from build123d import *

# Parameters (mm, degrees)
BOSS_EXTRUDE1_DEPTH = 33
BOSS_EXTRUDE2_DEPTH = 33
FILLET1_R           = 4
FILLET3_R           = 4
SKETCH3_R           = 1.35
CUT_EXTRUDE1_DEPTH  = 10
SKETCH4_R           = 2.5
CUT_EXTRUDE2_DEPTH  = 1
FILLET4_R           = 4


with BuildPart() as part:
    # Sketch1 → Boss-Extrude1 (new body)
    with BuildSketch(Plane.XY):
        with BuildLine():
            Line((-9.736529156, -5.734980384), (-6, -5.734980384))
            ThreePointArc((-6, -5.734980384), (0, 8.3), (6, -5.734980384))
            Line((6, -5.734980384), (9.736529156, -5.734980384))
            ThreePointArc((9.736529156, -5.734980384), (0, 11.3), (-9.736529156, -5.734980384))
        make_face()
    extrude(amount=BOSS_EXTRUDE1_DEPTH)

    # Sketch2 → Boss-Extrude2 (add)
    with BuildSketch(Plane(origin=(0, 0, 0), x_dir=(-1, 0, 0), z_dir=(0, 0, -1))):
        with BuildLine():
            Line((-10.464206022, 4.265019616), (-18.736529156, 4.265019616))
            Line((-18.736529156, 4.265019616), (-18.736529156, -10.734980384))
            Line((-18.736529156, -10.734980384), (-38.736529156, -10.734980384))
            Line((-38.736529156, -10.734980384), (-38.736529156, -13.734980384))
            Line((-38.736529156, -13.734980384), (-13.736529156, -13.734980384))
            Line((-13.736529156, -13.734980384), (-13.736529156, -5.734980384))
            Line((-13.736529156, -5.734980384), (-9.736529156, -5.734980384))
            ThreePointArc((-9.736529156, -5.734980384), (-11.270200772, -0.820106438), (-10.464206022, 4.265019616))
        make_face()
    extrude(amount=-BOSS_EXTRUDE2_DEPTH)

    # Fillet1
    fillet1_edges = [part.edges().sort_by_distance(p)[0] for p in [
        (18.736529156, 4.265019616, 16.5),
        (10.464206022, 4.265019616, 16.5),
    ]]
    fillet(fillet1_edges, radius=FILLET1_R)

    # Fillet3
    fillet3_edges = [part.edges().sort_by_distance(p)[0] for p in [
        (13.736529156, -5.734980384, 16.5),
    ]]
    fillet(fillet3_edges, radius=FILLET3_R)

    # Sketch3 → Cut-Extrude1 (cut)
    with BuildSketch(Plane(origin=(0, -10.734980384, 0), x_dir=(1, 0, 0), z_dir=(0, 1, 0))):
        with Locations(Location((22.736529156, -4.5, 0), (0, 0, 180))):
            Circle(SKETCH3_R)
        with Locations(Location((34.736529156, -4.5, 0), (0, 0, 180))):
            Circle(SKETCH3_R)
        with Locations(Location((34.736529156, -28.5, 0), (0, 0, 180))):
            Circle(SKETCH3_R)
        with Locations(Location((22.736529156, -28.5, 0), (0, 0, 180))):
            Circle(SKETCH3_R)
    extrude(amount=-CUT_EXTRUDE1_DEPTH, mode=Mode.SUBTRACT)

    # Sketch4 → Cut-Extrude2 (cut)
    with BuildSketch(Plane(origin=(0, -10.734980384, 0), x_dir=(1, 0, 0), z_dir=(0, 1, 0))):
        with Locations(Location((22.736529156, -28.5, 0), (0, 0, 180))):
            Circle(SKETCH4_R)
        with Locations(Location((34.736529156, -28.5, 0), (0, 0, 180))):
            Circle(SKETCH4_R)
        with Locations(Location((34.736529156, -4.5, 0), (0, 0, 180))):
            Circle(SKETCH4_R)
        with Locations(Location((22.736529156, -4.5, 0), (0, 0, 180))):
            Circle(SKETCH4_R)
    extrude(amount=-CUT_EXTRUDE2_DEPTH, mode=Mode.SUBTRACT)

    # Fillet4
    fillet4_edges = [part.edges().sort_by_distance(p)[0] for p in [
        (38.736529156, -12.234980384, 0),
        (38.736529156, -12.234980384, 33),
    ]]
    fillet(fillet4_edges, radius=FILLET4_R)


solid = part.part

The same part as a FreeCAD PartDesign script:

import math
import FreeCAD as App
import Part
import Sketcher
from FreeCAD import Vector
Q = App.Units.Quantity


def edges_at(feature, points):
    """Names of the edges that pass closest to the given points."""
    edges = feature.Shape.Edges
    near = lambda p: min(range(len(edges)), key=lambda i: edges[i].distToShape(Part.Vertex(*p))[0])
    return sorted({f"Edge{near(p) + 1}" for p in points})

doc = App.newDocument("Part")
body = doc.addObject("PartDesign::Body", "Body")

# Sketch on XY plane
sketch1 = body.newObject("Sketcher::SketchObject", "Sketch")
sketch1.AttachmentSupport = (doc.getObject("XY_Plane"), [""])
sketch1.MapMode = "FlatFace"
sketch1.addGeometry([
    Part.LineSegment(Vector(-9.736529, -5.73498, 0), Vector(-6, -5.73498, 0)),
    Part.ArcOfCircle(Part.Circle(Vector(0, 0, 0), Vector(0, 0, 1), 8.3), math.radians(-43.706268), math.radians(223.706268)),
    Part.LineSegment(Vector(6, -5.73498, 0), Vector(9.736529, -5.73498, 0)),
    Part.ArcOfCircle(Part.Circle(Vector(0, 0, 0), Vector(0, 0, 1), 11.3), math.radians(-30.498805), math.radians(210.498805)),
], False)
sketch1.addConstraint([
    Sketcher.Constraint("Coincident", 0, 2, 1, 2),
    Sketcher.Constraint("Coincident", 1, 1, 2, 1),
    Sketcher.Constraint("Coincident", 2, 2, 3, 1),
    Sketcher.Constraint("Coincident", 3, 2, 0, 1),
    Sketcher.Constraint("Horizontal", 0),
    Sketcher.Constraint("Horizontal", 2),
    Sketcher.Constraint("Coincident", 1, 3, -1, 1),
    Sketcher.Constraint("Coincident", 3, 3, -1, 1),
    Sketcher.Constraint("Horizontal", 0, 2, 1, 1),
    Sketcher.Constraint("Radius", 1, Q("8.3 mm")),
    Sketcher.Constraint("Radius", 3, Q("11.3 mm")),
    Sketcher.Constraint("DistanceX", 0, 2, -1, 1, Q("6 mm")),
])
pad1 = body.newObject("PartDesign::Pad", "Pad")
pad1.Profile = sketch1
pad1.Length = 33

# Sketch on XY plane
sketch2 = body.newObject("Sketcher::SketchObject", "Sketch001")
sketch2.AttachmentSupport = (doc.getObject("XY_Plane"), [""])
sketch2.MapMode = "FlatFace"
sketch2.addGeometry([
    Part.LineSegment(Vector(10.464206, 4.26502, 0), Vector(18.736529, 4.26502, 0)),  # 0
    Part.LineSegment(Vector(18.736529, 4.26502, 0), Vector(18.736529, -10.73498, 0)),  # 1
    Part.LineSegment(Vector(18.736529, -10.73498, 0), Vector(38.736529, -10.73498, 0)),  # 2
    Part.LineSegment(Vector(38.736529, -10.73498, 0), Vector(38.736529, -13.73498, 0)),  # 3
    Part.LineSegment(Vector(38.736529, -13.73498, 0), Vector(13.736529, -13.73498, 0)),  # 4
    Part.LineSegment(Vector(13.736529, -13.73498, 0), Vector(13.736529, -5.73498, 0)),  # 5
    Part.LineSegment(Vector(13.736529, -5.73498, 0), Vector(9.736529, -5.73498, 0)),  # 6
    Part.ArcOfCircle(Part.Circle(Vector(0, 0, 0), Vector(0, 0, 1), 11.3), math.radians(-30.498805), math.radians(22.174913)),  # 7
], False)
sketch2.addConstraint([
    Sketcher.Constraint("Coincident", 0, 2, 1, 1),
    Sketcher.Constraint("Coincident", 1, 2, 2, 1),
    Sketcher.Constraint("Coincident", 2, 2, 3, 1),
    Sketcher.Constraint("Coincident", 3, 2, 4, 1),
    Sketcher.Constraint("Coincident", 4, 2, 5, 1),
    Sketcher.Constraint("Coincident", 5, 2, 6, 1),
    Sketcher.Constraint("Coincident", 6, 2, 7, 1),
    Sketcher.Constraint("Coincident", 7, 2, 0, 1),
    Sketcher.Constraint("Horizontal", 0),
    Sketcher.Constraint("Vertical", 1),
    Sketcher.Constraint("Horizontal", 2),
    Sketcher.Constraint("Vertical", 3),
    Sketcher.Constraint("Horizontal", 4),
    Sketcher.Constraint("Vertical", 5),
    Sketcher.Constraint("Horizontal", 6),
    Sketcher.Constraint("Coincident", 7, 3, -1, 1),
    Sketcher.Constraint("Radius", 7, Q("11.3 mm")),
    Sketcher.Constraint("DistanceX", 2, 1, 2, 2, Q("20 mm")),
    Sketcher.Constraint("DistanceX", 4, 2, 4, 1, Q("25 mm")),
    Sketcher.Constraint("DistanceX", 6, 2, 6, 1, Q("4 mm")),
    Sketcher.Constraint("DistanceY", 1, 2, 1, 1, Q("15 mm")),
    Sketcher.Constraint("DistanceY", 3, 2, 3, 1, Q("3 mm")),
    Sketcher.Constraint("DistanceY", 5, 1, 5, 2, Q("8 mm")),
    Sketcher.Constraint("DistanceX", 0, 1, 0, 2, Q("8.272323 mm")),
])
pad2 = body.newObject("PartDesign::Pad", "Pad001")
pad2.Profile = sketch2
pad2.Length = 33
doc.recompute()

fillet = body.newObject("PartDesign::Fillet", "Fillet")
fillet.Base = (pad2, edges_at(pad2, [(18.737, 4.265, 16.5), (10.464, 4.265, 16.5)]))
fillet.Radius = 4
doc.recompute()

fillet2 = body.newObject("PartDesign::Fillet", "Fillet001")
fillet2.Base = (fillet, edges_at(fillet, [(13.737, -5.735, 16.5)]))
fillet2.Radius = 4

# Sketch on XZ plane
sketch3 = body.newObject("Sketcher::SketchObject", "Sketch002")
sketch3.AttachmentSupport = (doc.getObject("XZ_Plane"), [""])
sketch3.MapMode = "FlatFace"
sketch3.AttachmentOffset = App.Placement(Vector(0, 0, 10.73498), App.Rotation())
sketch3.addGeometry([
    Part.Circle(Vector(22.736529, 4.5, 0), Vector(0, 0, 1), 1.35),
    Part.Circle(Vector(34.736529, 4.5, 0), Vector(0, 0, 1), 1.35),
    Part.Circle(Vector(34.736529, 28.5, 0), Vector(0, 0, 1), 1.35),
    Part.Circle(Vector(22.736529, 28.5, 0), Vector(0, 0, 1), 1.35),
], False)
sketch3.addConstraint([
    Sketcher.Constraint("Equal", 0, 1),
    Sketcher.Constraint("Equal", 1, 2),
    Sketcher.Constraint("Equal", 2, 3),
    Sketcher.Constraint("Horizontal", 0, 3, 1, 3),
    Sketcher.Constraint("Horizontal", 2, 3, 3, 3),
    Sketcher.Constraint("Vertical", 1, 3, 2, 3),
    Sketcher.Constraint("Vertical", 0, 3, 3, 3),
    Sketcher.Constraint("Diameter", 0, Q("2.7 mm")),
    Sketcher.Constraint("DistanceX", 0, 3, 1, 3, Q("12 mm")),
    Sketcher.Constraint("DistanceY", 1, 3, 2, 3, Q("24 mm")),
    Sketcher.Constraint("DistanceY", -1, 1, 0, 3, Q("4.5 mm")),
    Sketcher.Constraint("DistanceX", -1, 1, 0, 3, Q("22.736529 mm")),
])
pocket1 = body.newObject("PartDesign::Pocket", "Pocket")
pocket1.Profile = sketch3
pocket1.Length = 10
pocket1.Reversed = True

# Sketch on XZ plane
sketch4 = body.newObject("Sketcher::SketchObject", "Sketch003")
sketch4.AttachmentSupport = (doc.getObject("XZ_Plane"), [""])
sketch4.MapMode = "FlatFace"
sketch4.AttachmentOffset = App.Placement(Vector(0, 0, 10.73498), App.Rotation())
sketch4.addGeometry([
    Part.Circle(Vector(22.736529, 28.5, 0), Vector(0, 0, 1), 2.5),
    Part.Circle(Vector(34.736529, 28.5, 0), Vector(0, 0, 1), 2.5),
    Part.Circle(Vector(34.736529, 4.5, 0), Vector(0, 0, 1), 2.5),
    Part.Circle(Vector(22.736529, 4.5, 0), Vector(0, 0, 1), 2.5),
], False)
sketch4.addConstraint([
    Sketcher.Constraint("Equal", 0, 1),
    Sketcher.Constraint("Equal", 1, 2),
    Sketcher.Constraint("Equal", 2, 3),
    Sketcher.Constraint("Horizontal", 0, 3, 1, 3),
    Sketcher.Constraint("Horizontal", 2, 3, 3, 3),
    Sketcher.Constraint("Vertical", 1, 3, 2, 3),
    Sketcher.Constraint("Vertical", 0, 3, 3, 3),
    Sketcher.Constraint("Diameter", 0, Q("5 mm")),
    Sketcher.Constraint("DistanceX", 0, 3, 1, 3, Q("12 mm")),
    Sketcher.Constraint("DistanceY", 2, 3, 1, 3, Q("24 mm")),
    Sketcher.Constraint("DistanceY", -1, 1, 0, 3, Q("28.5 mm")),
    Sketcher.Constraint("DistanceX", -1, 1, 0, 3, Q("22.736529 mm")),
])
pocket2 = body.newObject("PartDesign::Pocket", "Pocket001")
pocket2.Profile = sketch4
pocket2.Length = 1
pocket2.Reversed = True
doc.recompute()

fillet3 = body.newObject("PartDesign::Fillet", "Fillet002")
fillet3.Base = (pocket2, edges_at(pocket2, [(38.737, -12.235, 0), (38.737, -12.235, 33)]))
fillet3.Radius = 4

doc.recompute()
